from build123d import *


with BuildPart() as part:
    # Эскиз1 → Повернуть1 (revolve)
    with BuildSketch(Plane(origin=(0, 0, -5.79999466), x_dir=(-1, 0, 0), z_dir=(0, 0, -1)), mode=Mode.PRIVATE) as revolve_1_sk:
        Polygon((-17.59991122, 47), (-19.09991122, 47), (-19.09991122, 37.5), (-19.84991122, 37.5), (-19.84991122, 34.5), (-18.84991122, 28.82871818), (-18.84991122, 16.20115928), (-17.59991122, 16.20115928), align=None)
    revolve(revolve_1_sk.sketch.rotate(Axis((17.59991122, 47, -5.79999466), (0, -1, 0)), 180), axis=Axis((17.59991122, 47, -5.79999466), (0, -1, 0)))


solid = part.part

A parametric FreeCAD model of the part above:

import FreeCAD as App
import Part
import Sketcher

V = App.Vector
Q = App.Units.Quantity


def add_polygon(sketch, points):
    """Adds a closed chain of lines whose ends are joined by coincident constraints."""
    first, n = sketch.GeometryCount, len(points)
    for a, b in zip(points, points[1:] + points[:1]):
        sketch.addGeometry(Part.LineSegment(App.Vector(*a, 0), App.Vector(*b, 0)), False)
    for i in range(n):
        sketch.addConstraint(Sketcher.Constraint("Coincident", first + i, 2, first + (i + 1) % n, 1))

doc = App.newDocument("Part")
body = doc.addObject("PartDesign::Body", "Body")

sketch1 = body.newObject("Sketcher::SketchObject", "Sketch")
sketch1.AttachmentSupport = (doc.getObject("XY_Plane"), [""])
sketch1.MapMode = "FlatFace"
sketch1.AttachmentOffset = App.Placement(V(0, 0, -5.799995), App.Rotation())
add_polygon(sketch1, [(17.6, 47), (19.1, 47), (19.1, 37.5), (19.8, 37.5), (19.8, 34.5), (18.8, 28.8), (18.8, 16.2), (17.6, 16.2)])
sketch1.addGeometry(Part.LineSegment(V(17.6, 47, 0), V(17.6, 16.2, 0)), True)
sketch1.addConstraint([
    Sketcher.Constraint("Horizontal", 0),
    Sketcher.Constraint("Vertical", 1),
    Sketcher.Constraint("Horizontal", 2),
    Sketcher.Constraint("Vertical", 3),
    Sketcher.Constraint("Vertical", 5),
    Sketcher.Constraint("Horizontal", 6),
    Sketcher.Constraint("Vertical", 7),
    Sketcher.Constraint("Vertical", 8),
    Sketcher.Constraint("Coincident", 8, 1, 7, 2),
    Sketcher.Constraint("Horizontal", 5, 2, 8, 2),
    Sketcher.Constraint("DistanceY", 3, 2, 3, 1, Q("3 mm")),
    Sketcher.Constraint("Angle", 4, Q("-100 deg")),
    Sketcher.Constraint("DistanceX", 0, 1, 0, 2, Q("1.5 mm")),
    Sketcher.Constraint("DistanceY", 1, 2, 1, 1, Q("9.5 mm")),
    Sketcher.Constraint("DistanceY", -1, 1, 0, 2, Q("47 mm")),
    Sketcher.Constraint("DistanceX", 4, 2, 3, 2, Q("1 mm")),
    Sketcher.Constraint("DistanceX", 2, 1, 2, 2, Q("0.75 mm")),
    Sketcher.Constraint("DistanceY", 5, 2, 5, 1, Q("12.627559 mm")),
    Sketcher.Constraint("DistanceX", -1, 1, 0, 2, Q("19.099911 mm")),
])
revolution = body.newObject("PartDesign::Revolution", "Revolution")
revolution.Profile = sketch1
revolution.ReferenceAxis = (sketch1, ["Axis0"])
revolution.Angle = 360

doc.recompute()
